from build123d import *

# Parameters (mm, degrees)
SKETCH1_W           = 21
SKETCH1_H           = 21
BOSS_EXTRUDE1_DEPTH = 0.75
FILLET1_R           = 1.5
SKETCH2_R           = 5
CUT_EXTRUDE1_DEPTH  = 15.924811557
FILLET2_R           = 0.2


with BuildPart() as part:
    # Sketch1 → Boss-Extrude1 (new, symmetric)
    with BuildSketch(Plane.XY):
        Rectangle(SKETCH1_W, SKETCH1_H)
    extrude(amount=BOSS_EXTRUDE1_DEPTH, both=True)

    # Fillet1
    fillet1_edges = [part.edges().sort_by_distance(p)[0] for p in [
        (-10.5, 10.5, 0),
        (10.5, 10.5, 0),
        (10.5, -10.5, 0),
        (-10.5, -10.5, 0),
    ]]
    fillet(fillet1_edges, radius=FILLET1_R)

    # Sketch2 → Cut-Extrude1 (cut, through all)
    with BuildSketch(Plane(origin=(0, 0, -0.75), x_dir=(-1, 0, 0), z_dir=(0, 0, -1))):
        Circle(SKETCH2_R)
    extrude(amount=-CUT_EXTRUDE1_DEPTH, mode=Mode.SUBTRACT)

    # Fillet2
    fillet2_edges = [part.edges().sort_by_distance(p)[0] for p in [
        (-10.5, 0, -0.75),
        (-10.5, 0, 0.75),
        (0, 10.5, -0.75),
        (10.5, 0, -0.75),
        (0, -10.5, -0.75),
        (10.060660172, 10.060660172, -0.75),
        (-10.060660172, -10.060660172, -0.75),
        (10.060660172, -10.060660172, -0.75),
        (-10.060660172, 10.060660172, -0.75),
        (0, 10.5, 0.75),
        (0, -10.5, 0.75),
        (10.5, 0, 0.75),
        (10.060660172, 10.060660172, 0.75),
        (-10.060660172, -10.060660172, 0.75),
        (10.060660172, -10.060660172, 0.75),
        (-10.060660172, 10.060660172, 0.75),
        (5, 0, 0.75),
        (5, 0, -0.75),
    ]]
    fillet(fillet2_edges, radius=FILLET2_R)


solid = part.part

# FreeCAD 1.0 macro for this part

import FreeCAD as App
import Part
import Sketcher
from FreeCAD import Vector
Q = App.Units.Quantity


def edges_at(feature, points):
    """Names of the edges that pass closest to the given points."""
    edges = feature.Shape.Edges
    near = lambda p: min(range(len(edges)), key=lambda i: edges[i].distToShape(Part.Vertex(*p))[0])
    return sorted({f"Edge{near(p) + 1}" for p in points})

doc = App.newDocument("Part")
params = doc.addObject("Spreadsheet::Sheet", "Params")
for row, (alias, value) in enumerate([
    ("sketch1_width", "21 mm"),
    ("pad1_length", "1.5 mm"),
    ("fillet_radius", "1.5 mm"),
    ("sketch2_diameter", "10 mm"),
    ("fillet2_radius", "0.2 mm"),
], start=1):
    params.set(f"A{row}", alias)
    params.set(f"B{row}", "=" + value)
    params.setAlias(f"B{row}", alias)

body = doc.addObject("PartDesign::Body", "Body")

# Sketch on XY plane
sketch1 = body.newObject("Sketcher::SketchObject", "Sketch")
sketch1.AttachmentSupport = (doc.getObject("XY_Plane"), [""])
sketch1.MapMode = "FlatFace"
sketch1.addGeometry([
    Part.LineSegment(Vector(-10, 10, 0), Vector(-10, -10, 0)),
    Part.LineSegment(Vector(-10, -10, 0), Vector(10, -10, 0)),
    Part.LineSegment(Vector(10, -10, 0), Vector(10, 10, 0)),
    Part.LineSegment(Vector(10, 10, 0), Vector(-10, 10, 0)),
], False)
sketch1.addConstraint([
    Sketcher.Constraint("Coincident", 0, 2, 1, 1),
    Sketcher.Constraint("Coincident", 1, 2, 2, 1),
    Sketcher.Constraint("Coincident", 2, 2, 3, 1),
    Sketcher.Constraint("Coincident", 3, 2, 0, 1),
    Sketcher.Constraint("Vertical", 0),
    Sketcher.Constraint("Horizontal", 1),
    Sketcher.Constraint("Vertical", 2),
    Sketcher.Constraint("Horizontal", 3),
    Sketcher.Constraint("Symmetric", 0, 2, 2, 2, -1, 1),
    Sketcher.Constraint("Equal", 3, 0),
    Sketcher.Constraint("DistanceX", 1, 1, 1, 2, Q("21 mm")),
])
sketch1.setExpression("Constraints[10]", "Params.sketch1_width")
pad1 = body.newObject("PartDesign::Pad", "Pad")
pad1.Profile = sketch1
pad1.setExpression("Length", "Params.pad1_length")
pad1.Midplane = True
doc.recompute()

fillet = body.newObject("PartDesign::Fillet", "Fillet")
fillet.Base = (pad1, edges_at(pad1, [
    (-10.5, 10.5, 0),
    (10.5, 10.5, 0),
    (10.5, -10.5, 0),
    (-10.5, -10.5, 0),
]))
fillet.setExpression("Radius", "Params.fillet_radius")

# Sketch on XY plane
sketch2 = body.newObject("Sketcher::SketchObject", "Sketch001")
sketch2.AttachmentSupport = (doc.getObject("XY_Plane"), [""])
sketch2.MapMode = "FlatFace"
sketch2.AttachmentOffset = App.Placement(Vector(0, 0, -0.75), App.Rotation())
sketch2.addGeometry(Part.Circle(Vector(0, 0, 0), Vector(0, 0, 1), 5), False)
sketch2.addConstraint([
    Sketcher.Constraint("Coincident", 0, 3, -1, 1),
    Sketcher.Constraint("Diameter", 0, Q("10 mm")),
])
sketch2.setExpression("Constraints[1]", "Params.sketch2_diameter")
pocket1 = body.newObject("PartDesign::Pocket", "Pocket")
pocket1.Profile = sketch2
pocket1.Type = "ThroughAll"
pocket1.Reversed = True
doc.recompute()

fillet2 = body.newObject("PartDesign::Fillet", "Fillet001")
fillet2.Base = (pocket1, edges_at(pocket1, [
    (-10.5, 0, -0.75),
    (-10.5, 0, 0.75),
    (0, 10.5, -0.75),
    (10.5, 0, -0.75),
    (0, -10.5, -0.75),
    (10.061, 10.061, -0.75),
    (-10.061, -10.061, -0.75),
    (10.061, -10.061, -0.75),
    (-10.061, 10.061, -0.75),
    (0, 10.5, 0.75),
    (0, -10.5, 0.75),
    (10.5, 0, 0.75),
    (10.061, 10.061, 0.75),
    (-10.061, -10.061, 0.75),
    (10.061, -10.061, 0.75),
    (-10.061, 10.061, 0.75),
    (5, 0, 0.75),
    (5, 0, -0.75),
]))
fillet2.setExpression("Radius", "Params.fillet2_radius")

doc.recompute()
